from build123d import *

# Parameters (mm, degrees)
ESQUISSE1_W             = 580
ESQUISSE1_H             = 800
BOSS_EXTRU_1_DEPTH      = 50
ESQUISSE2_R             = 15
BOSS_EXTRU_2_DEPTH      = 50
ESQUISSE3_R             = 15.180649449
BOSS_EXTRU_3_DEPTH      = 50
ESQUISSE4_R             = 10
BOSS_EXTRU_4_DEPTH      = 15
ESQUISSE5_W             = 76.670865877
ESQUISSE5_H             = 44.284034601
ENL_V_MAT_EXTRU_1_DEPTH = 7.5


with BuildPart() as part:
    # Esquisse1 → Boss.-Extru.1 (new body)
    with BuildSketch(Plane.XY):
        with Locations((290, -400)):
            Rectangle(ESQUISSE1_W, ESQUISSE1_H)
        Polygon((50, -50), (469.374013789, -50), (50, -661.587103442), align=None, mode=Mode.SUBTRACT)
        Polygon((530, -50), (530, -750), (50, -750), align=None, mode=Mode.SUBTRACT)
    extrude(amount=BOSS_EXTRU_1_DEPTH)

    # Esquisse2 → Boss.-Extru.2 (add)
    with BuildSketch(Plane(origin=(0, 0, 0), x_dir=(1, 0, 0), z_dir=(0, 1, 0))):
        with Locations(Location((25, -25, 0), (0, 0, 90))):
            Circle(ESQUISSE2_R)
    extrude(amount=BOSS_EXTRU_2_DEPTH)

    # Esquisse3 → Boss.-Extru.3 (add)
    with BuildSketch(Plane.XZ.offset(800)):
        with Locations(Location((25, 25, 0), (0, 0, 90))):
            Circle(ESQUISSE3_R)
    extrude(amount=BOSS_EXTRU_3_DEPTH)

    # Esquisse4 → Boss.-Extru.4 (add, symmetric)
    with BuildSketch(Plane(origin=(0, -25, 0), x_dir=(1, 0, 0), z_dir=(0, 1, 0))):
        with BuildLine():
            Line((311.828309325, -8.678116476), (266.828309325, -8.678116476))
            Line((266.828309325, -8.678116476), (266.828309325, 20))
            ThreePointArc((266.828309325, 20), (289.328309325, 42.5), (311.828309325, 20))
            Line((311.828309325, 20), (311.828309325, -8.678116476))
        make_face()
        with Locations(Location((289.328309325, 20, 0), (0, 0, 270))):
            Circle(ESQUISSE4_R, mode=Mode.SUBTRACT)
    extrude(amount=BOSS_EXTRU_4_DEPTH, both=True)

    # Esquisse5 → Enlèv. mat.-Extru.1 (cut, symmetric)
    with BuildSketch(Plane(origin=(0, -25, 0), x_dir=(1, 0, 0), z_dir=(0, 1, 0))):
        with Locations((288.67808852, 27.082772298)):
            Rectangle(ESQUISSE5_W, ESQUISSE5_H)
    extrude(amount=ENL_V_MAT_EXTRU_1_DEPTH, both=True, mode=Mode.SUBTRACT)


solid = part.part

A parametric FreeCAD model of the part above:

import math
import FreeCAD as App
import Part
import Sketcher

doc = App.newDocument("Part")
params = doc.addObject("Spreadsheet::Sheet", "Params")
for row, (alias, value) in enumerate([
    ("sketch1_width", "580 mm"),
    ("sketch1_width2", "480 mm"),
    ("sketch1_height", "800 mm"),
    ("sketch1_height2", "700 mm"),
    ("pad1_length", "50 mm"),
    ("sketch2_diameter", "30 mm"),
    ("pad2_length", "50 mm"),
    ("pad3_length", "50 mm"),
    ("sketch4_diameter", "20 mm"),
    ("sketch4_radius", "22.5 mm"),
    ("pad4_length", "30 mm"),
    ("pocket1_length", "15 mm"),
], start=1):
    params.set(f"A{row}", alias)
    params.set(f"B{row}", "=" + value)
    params.setAlias(f"B{row}", alias)

body = doc.addObject("PartDesign::Body", "Body")

sketch1 = body.newObject("Sketcher::SketchObject", "Sketch")
sketch1.AttachmentSupport = (doc.getObject("XY_Plane"), [""])
sketch1.MapMode = "FlatFace"
sketch1.addGeometry([
    Part.LineSegment(App.Vector(0, 0, 0), App.Vector(0, -800, 0)),
    Part.LineSegment(App.Vector(0, -800, 0), App.Vector(580, -800, 0)),
    Part.LineSegment(App.Vector(580, -800, 0), App.Vector(580, 0, 0)),
    Part.LineSegment(App.Vector(580, 0, 0), App.Vector(0, 0, 0)),
    Part.LineSegment(App.Vector(50, -662, 0), App.Vector(50, -50, 0)),
    Part.LineSegment(App.Vector(50, -50, 0), App.Vector(469, -50, 0)),
    Part.LineSegment(App.Vector(469, -50, 0), App.Vector(50, -662, 0)),
    Part.LineSegment(App.Vector(50, -750, 0), App.Vector(530, -50, 0)),
    Part.LineSegment(App.Vector(530, -50, 0), App.Vector(530, -750, 0)),
    Part.LineSegment(App.Vector(530, -750, 0), App.Vector(50, -750, 0)),
], False)
sketch1.addConstraint([
    Sketcher.Constraint("Coincident", 0, 2, 1, 1),
    Sketcher.Constraint("Coincident", 1, 2, 2, 1),
    Sketcher.Constraint("Coincident", 2, 2, 3, 1),
    Sketcher.Constraint("Coincident", 3, 2, 0, 1),
    Sketcher.Constraint("Coincident", 4, 2, 5, 1),
    Sketcher.Constraint("Coincident", 5, 2, 6, 1),
    Sketcher.Constraint("Coincident", 6, 2, 4, 1),
    Sketcher.Constraint("Coincident", 7, 2, 8, 1),
    Sketcher.Constraint("Coincident", 8, 2, 9, 1),
    Sketcher.Constraint("Coincident", 9, 2, 7, 1),
    Sketcher.Constraint("Vertical", 0),
    Sketcher.Constraint("Horizontal", 1),
    Sketcher.Constraint("Vertical", 2),
    Sketcher.Constraint("Horizontal", 3),
    Sketcher.Constraint("Vertical", 4),
    Sketcher.Constraint("Horizontal", 5),
    Sketcher.Constraint("Vertical", 8),
    Sketcher.Constraint("Horizontal", 9),
    Sketcher.Constraint("Coincident", 3, 2, -1, 1),
    Sketcher.Constraint("Parallel", 6, 7),
    Sketcher.Constraint("Horizontal", 5, 2, 7, 2),
    Sketcher.Constraint("Vertical", 6, 2, 9, 2),
    Sketcher.Constraint("DistanceX", 1, 1, 1, 2, 580.0),
    Sketcher.Constraint("DistanceX", 9, 2, 9, 1, 480.0),
    Sketcher.Constraint("DistanceY", 0, 2, 0, 1, 800.0),
    Sketcher.Constraint("DistanceY", 8, 2, 8, 1, 700.0),
    Sketcher.Constraint("DistanceX", -1, 1, 4, 2, 50.0),
    Sketcher.Constraint("DistanceY", 4, 2, -1, 1, 50.0),
    Sketcher.Constraint("DistanceX", 5, 1, 5, 2, 419.374014),
])
sketch1.setExpression("Constraints[22]", "Params.sketch1_width")
sketch1.setExpression("Constraints[23]", "Params.sketch1_width2")
sketch1.setExpression("Constraints[24]", "Params.sketch1_height")
sketch1.setExpression("Constraints[25]", "Params.sketch1_height2")
pad1 = body.newObject("PartDesign::Pad", "Pad")
pad1.Profile = sketch1
pad1.setExpression("Length", "Params.pad1_length")

sketch2 = body.newObject("Sketcher::SketchObject", "Sketch001")
sketch2.AttachmentSupport = (doc.getObject("XZ_Plane"), [""])
sketch2.MapMode = "FlatFace"
sketch2.addGeometry(Part.Circle(App.Vector(25, 25, 0), App.Vector(0, 0, 1), 15), False)
sketch2.addConstraint([
    Sketcher.Constraint("Diameter", 0, 30.0),
    Sketcher.Constraint("DistanceX", -1, 1, 0, 3, 25.0),
    Sketcher.Constraint("DistanceY", -1, 1, 0, 3, 25.0),
])
sketch2.setExpression("Constraints[0]", "Params.sketch2_diameter")
pad2 = body.newObject("PartDesign::Pad", "Pad001")
pad2.Profile = sketch2
pad2.setExpression("Length", "Params.pad2_length")
pad2.Reversed = True

sketch3 = body.newObject("Sketcher::SketchObject", "Sketch002")
sketch3.AttachmentSupport = (doc.getObject("XZ_Plane"), [""])
sketch3.MapMode = "FlatFace"
sketch3.AttachmentOffset = App.Placement(App.Vector(0, 0, 800), App.Rotation())
sketch3.addGeometry(Part.Circle(App.Vector(25, 25, 0), App.Vector(0, 0, 1), 15), False)
sketch3.addConstraint([
    Sketcher.Constraint("DistanceX", -1, 1, 0, 3, 25.0),
    Sketcher.Constraint("DistanceY", -1, 1, 0, 3, 25.0),
    Sketcher.Constraint("Diameter", 0, 30.361299),
])
pad3 = body.newObject("PartDesign::Pad", "Pad002")
pad3.Profile = sketch3
pad3.setExpression("Length", "Params.pad3_length")

sketch4 = body.newObject("Sketcher::SketchObject", "Sketch003")
sketch4.AttachmentSupport = (doc.getObject("XZ_Plane"), [""])
sketch4.MapMode = "FlatFace"
sketch4.AttachmentOffset = App.Placement(App.Vector(0, 0, 25), App.Rotation())
sketch4.addGeometry([
    Part.LineSegment(App.Vector(267, 9, 0), App.Vector(312, 9, 0)),
    Part.LineSegment(App.Vector(312, 9, 0), App.Vector(312, -20, 0)),
    Part.ArcOfCircle(Part.Circle(App.Vector(289, -20, 0), App.Vector(0, 0, 1), 22), math.radians(180), math.radians(360)),
    Part.LineSegment(App.Vector(267, -20, 0), App.Vector(267, 9, 0)),
    Part.Circle(App.Vector(289, -20, 0), App.Vector(0, 0, 1), 10),
], False)
sketch4.addConstraint([
    Sketcher.Constraint("Coincident", 0, 2, 1, 1),
    Sketcher.Constraint("Tangent", 1, 2, 2, 2),
    Sketcher.Constraint("Tangent", 2, 1, 3, 1),
    Sketcher.Constraint("Coincident", 3, 2, 0, 1),
    Sketcher.Constraint("Horizontal", 0),
    Sketcher.Constraint("Vertical", 1),
    Sketcher.Constraint("Vertical", 3),
    Sketcher.Constraint("Coincident", 4, 3, 2, 3),
    Sketcher.Constraint("Diameter", 4, 20.0),
    Sketcher.Constraint("Radius", 2, 22.5),
    Sketcher.Constraint("DistanceY", 2, 3, -1, 1, 20.0),
    Sketcher.Constraint("DistanceY", 1, 2, 1, 1, 28.678116),
    Sketcher.Constraint("DistanceX", -1, 1, 2, 3, 289.328309),
])
sketch4.setExpression("Constraints[8]", "Params.sketch4_diameter")
sketch4.setExpression("Constraints[9]", "Params.sketch4_radius")
pad4 = body.newObject("PartDesign::Pad", "Pad003")
pad4.Profile = sketch4
pad4.setExpression("Length", "Params.pad4_length")
pad4.Midplane = True

sketch5 = body.newObject("Sketcher::SketchObject", "Sketch004")
sketch5.AttachmentSupport = (doc.getObject("XZ_Plane"), [""])
sketch5.MapMode = "FlatFace"
sketch5.AttachmentOffset = App.Placement(App.Vector(0, 0, 25), App.Rotation())
sketch5.addGeometry([
    Part.LineSegment(App.Vector(250, -49, 0), App.Vector(250, -5, 0)),
    Part.LineSegment(App.Vector(250, -5, 0), App.Vector(327, -5, 0)),
    Part.LineSegment(App.Vector(327, -5, 0), App.Vector(327, -49, 0)),
    Part.LineSegment(App.Vector(327, -49, 0), App.Vector(250, -49, 0)),
], False)
sketch5.addConstraint([
    Sketcher.Constraint("Coincident", 0, 2, 1, 1),
    Sketcher.Constraint("Coincident", 1, 2, 2, 1),
    Sketcher.Constraint("Coincident", 2, 2, 3, 1),
    Sketcher.Constraint("Coincident", 3, 2, 0, 1),
    Sketcher.Constraint("Vertical", 0),
    Sketcher.Constraint("Horizontal", 1),
    Sketcher.Constraint("Vertical", 2),
    Sketcher.Constraint("Horizontal", 3),
    Sketcher.Constraint("DistanceX", 1, 1, 1, 2, 76.670866),
    Sketcher.Constraint("DistanceY", 0, 1, 0, 2, 44.284035),
    Sketcher.Constraint("DistanceX", -1, 1, 1, 2, 327.013521),
    Sketcher.Constraint("DistanceY", 2, 2, -1, 1, 49.22479),
])
pocket1 = body.newObject("PartDesign::Pocket", "Pocket")
pocket1.Profile = sketch5
pocket1.setExpression("Length", "Params.pocket1_length")
pocket1.Midplane = True

doc.recompute()
